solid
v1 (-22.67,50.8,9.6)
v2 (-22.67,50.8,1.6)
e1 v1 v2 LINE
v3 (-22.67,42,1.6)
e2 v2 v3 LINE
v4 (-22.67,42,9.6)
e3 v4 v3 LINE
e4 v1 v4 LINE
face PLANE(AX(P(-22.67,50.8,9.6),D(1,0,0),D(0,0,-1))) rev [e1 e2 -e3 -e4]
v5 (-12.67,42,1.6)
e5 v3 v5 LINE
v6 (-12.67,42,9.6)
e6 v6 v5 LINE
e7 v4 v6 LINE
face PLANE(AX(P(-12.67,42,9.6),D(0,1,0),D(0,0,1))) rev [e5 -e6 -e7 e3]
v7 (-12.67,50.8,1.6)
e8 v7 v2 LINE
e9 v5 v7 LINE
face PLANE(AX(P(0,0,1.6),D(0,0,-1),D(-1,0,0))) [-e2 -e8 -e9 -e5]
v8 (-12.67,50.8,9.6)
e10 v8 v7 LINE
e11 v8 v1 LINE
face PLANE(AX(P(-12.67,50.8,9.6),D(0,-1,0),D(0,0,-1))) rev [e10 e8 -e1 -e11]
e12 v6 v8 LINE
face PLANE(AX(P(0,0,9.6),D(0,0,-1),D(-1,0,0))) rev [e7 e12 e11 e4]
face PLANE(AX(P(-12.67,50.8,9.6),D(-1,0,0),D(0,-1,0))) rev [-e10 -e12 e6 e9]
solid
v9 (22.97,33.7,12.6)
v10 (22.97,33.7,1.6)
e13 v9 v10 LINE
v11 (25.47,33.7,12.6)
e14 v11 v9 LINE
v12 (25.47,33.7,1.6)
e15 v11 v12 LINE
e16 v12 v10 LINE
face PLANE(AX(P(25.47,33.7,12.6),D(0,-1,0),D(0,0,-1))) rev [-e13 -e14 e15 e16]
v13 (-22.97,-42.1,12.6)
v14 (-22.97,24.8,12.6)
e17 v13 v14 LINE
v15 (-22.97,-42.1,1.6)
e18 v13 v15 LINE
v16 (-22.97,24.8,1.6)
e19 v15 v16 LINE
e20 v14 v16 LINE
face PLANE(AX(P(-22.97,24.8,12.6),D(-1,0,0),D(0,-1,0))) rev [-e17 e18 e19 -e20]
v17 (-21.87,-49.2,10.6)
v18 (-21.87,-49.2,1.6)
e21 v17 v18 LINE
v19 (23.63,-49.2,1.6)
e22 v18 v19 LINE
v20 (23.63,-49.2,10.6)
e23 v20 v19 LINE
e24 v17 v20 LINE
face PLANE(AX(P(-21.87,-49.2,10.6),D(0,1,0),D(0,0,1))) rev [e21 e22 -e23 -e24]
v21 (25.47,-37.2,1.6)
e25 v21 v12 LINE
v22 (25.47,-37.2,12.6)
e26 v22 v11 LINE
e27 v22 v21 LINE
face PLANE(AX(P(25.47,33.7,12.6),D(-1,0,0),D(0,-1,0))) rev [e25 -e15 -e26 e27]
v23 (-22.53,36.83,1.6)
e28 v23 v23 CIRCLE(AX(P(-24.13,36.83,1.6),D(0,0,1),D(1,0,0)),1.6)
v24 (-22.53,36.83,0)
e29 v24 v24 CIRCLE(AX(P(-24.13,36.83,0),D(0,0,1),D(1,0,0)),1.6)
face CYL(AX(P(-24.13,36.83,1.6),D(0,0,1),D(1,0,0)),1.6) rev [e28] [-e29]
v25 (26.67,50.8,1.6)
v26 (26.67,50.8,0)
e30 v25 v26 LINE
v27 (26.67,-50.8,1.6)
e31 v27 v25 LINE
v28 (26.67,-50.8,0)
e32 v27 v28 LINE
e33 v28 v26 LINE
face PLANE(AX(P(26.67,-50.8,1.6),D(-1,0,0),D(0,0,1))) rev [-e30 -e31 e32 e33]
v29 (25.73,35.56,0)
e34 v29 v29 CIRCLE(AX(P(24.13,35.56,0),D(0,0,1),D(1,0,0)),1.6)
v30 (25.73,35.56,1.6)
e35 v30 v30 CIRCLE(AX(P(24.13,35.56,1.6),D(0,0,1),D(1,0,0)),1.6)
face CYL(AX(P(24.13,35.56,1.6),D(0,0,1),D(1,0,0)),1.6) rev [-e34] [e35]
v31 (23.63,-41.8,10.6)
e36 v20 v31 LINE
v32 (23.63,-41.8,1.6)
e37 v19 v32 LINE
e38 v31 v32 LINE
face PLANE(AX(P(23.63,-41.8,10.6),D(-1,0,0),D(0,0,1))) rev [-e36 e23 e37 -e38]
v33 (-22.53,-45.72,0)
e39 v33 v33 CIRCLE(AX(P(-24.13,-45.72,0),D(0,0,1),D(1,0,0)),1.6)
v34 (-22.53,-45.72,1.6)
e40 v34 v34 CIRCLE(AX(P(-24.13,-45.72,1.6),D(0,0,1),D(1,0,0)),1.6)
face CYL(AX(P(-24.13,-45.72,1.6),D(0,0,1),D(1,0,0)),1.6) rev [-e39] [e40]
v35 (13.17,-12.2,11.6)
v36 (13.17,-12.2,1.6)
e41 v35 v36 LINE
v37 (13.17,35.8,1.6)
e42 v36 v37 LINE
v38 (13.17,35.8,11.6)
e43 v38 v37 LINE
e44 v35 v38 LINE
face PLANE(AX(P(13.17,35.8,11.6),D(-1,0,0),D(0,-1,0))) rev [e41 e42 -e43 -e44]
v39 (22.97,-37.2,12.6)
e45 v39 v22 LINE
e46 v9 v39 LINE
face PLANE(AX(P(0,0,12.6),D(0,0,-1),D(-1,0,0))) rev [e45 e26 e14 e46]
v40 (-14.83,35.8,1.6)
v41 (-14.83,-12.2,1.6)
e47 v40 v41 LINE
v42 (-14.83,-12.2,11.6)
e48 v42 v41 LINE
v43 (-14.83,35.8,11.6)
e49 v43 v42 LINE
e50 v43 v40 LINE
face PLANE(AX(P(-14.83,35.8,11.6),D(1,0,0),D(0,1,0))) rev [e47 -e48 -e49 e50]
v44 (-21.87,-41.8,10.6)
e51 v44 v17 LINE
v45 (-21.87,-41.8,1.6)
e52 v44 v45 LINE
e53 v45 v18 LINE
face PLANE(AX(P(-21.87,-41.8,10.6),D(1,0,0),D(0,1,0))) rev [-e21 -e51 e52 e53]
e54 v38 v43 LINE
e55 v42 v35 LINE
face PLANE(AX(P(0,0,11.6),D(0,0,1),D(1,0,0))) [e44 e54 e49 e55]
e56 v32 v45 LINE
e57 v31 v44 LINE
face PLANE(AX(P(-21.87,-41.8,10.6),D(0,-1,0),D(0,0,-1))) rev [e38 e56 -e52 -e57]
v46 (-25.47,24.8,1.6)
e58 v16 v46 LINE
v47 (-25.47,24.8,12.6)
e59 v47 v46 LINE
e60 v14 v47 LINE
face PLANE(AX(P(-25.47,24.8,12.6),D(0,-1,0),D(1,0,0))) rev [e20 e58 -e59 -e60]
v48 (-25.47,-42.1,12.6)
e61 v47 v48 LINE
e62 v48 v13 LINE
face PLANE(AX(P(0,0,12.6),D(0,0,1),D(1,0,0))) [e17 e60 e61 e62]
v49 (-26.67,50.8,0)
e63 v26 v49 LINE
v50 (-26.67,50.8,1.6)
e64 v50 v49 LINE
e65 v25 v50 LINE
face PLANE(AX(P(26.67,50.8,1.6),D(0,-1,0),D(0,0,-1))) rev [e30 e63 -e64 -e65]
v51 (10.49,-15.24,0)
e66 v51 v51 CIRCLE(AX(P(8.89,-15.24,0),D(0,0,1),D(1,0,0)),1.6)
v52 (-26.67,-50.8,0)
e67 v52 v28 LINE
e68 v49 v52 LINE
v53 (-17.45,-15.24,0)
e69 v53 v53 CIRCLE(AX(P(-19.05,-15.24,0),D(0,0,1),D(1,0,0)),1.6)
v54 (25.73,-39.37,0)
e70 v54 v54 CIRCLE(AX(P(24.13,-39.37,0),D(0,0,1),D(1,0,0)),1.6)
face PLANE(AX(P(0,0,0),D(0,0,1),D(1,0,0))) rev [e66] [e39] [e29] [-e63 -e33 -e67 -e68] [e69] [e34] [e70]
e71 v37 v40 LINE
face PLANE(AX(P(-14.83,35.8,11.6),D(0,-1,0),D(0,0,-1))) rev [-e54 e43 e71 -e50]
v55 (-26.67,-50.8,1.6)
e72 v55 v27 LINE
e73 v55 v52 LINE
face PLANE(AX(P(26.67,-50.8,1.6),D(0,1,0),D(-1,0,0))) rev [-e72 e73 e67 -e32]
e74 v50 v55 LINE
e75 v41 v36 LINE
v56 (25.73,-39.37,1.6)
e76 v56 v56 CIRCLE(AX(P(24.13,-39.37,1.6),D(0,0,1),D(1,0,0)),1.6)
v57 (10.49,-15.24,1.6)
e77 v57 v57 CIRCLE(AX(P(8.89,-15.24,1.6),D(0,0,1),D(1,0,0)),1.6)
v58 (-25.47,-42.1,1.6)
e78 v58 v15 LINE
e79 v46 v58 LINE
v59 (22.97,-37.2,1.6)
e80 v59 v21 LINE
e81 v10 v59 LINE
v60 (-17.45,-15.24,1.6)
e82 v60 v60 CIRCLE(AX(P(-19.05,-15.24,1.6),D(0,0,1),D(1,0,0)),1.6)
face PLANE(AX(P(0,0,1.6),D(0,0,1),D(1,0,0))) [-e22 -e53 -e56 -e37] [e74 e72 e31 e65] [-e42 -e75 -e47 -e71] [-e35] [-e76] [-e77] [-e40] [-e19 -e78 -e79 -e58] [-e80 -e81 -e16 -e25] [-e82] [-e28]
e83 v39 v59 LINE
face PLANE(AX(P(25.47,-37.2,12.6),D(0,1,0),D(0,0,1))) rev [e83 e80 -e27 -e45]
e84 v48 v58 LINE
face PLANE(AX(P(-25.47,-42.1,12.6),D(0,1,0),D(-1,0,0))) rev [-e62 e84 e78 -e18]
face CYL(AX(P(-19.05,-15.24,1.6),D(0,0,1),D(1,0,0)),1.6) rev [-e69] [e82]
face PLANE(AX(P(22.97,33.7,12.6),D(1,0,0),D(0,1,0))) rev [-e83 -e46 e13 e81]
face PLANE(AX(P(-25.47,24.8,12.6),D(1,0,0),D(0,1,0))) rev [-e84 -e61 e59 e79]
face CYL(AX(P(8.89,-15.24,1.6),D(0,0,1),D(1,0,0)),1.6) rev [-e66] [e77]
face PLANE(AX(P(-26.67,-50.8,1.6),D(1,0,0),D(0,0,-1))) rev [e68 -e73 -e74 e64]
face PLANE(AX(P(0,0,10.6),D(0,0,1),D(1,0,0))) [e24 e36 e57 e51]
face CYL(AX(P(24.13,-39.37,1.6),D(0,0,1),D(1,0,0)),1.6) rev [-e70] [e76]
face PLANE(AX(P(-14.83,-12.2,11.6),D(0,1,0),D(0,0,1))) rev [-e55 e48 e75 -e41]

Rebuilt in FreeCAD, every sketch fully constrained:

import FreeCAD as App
import Part
import Sketcher
from FreeCAD import Vector

doc = App.newDocument("Part")
body = doc.addObject("PartDesign::Body", "Body")

# Sketch on XY plane
sketch1 = doc.addObject("Sketcher::SketchObject", "Sketch")
body.addObject(sketch1)
sketch1.AttachmentSupport = (doc.XY_Plane, [""])
sketch1.MapMode = "FlatFace"
sketch1.addGeometry([
    Part.LineSegment(Vector(-27, 51, 0), Vector(-27, -51, 0)),
    Part.LineSegment(Vector(-27, -51, 0), Vector(27, -51, 0)),
    Part.LineSegment(Vector(27, -51, 0), Vector(27, 51, 0)),
    Part.LineSegment(Vector(27, 51, 0), Vector(-27, 51, 0)),
], False)
sketch1.addConstraint([
    Sketcher.Constraint("Coincident", 0, 2, 1, 1),
    Sketcher.Constraint("Coincident", 1, 2, 2, 1),
    Sketcher.Constraint("Coincident", 2, 2, 3, 1),
    Sketcher.Constraint("Coincident", 3, 2, 0, 1),
    Sketcher.Constraint("Vertical", 0),
    Sketcher.Constraint("Horizontal", 1),
    Sketcher.Constraint("Vertical", 2),
    Sketcher.Constraint("Horizontal", 3),
    Sketcher.Constraint("Symmetric", 0, 2, 2, 2, -1, 1),
    Sketcher.Constraint("DistanceY", 0, 2, 0, 1, 101.6),
    Sketcher.Constraint("DistanceX", 1, 1, 1, 2, 53.34),
])
pad1 = doc.addObject("PartDesign::Pad", "Pad")
body.addObject(pad1)
pad1.Profile = sketch1
pad1.Length = 1.6

# Sketch on XY plane
sketch2 = doc.addObject("Sketcher::SketchObject", "Sketch001")
body.addObject(sketch2)
sketch2.AttachmentSupport = (doc.XY_Plane, [""])
sketch2.MapMode = "FlatFace"
sketch2.AttachmentOffset = App.Placement(Vector(0, 0, 1.6), App.Rotation())
sketch2.addGeometry([
    Part.LineSegment(Vector(-25.5, 24.8, 0), Vector(-25.5, -42.1, 0)),  # 0
    Part.LineSegment(Vector(-25.5, -42.1, 0), Vector(-23, -42.1, 0)),  # 1
    Part.LineSegment(Vector(-23, -42.1, 0), Vector(-23, 24.8, 0)),  # 2
    Part.LineSegment(Vector(-23, 24.8, 0), Vector(-25.5, 24.8, 0)),  # 3
    Part.LineSegment(Vector(23, 33.7, 0), Vector(23, -37.2, 0)),  # 4
    Part.LineSegment(Vector(23, -37.2, 0), Vector(25.5, -37.2, 0)),  # 5
    Part.LineSegment(Vector(25.5, -37.2, 0), Vector(25.5, 33.7, 0)),  # 6
    Part.LineSegment(Vector(25.5, 33.7, 0), Vector(23, 33.7, 0)),  # 7
], False)
sketch2.addConstraint([
    Sketcher.Constraint("Coincident", 0, 2, 1, 1),
    Sketcher.Constraint("Coincident", 1, 2, 2, 1),
    Sketcher.Constraint("Coincident", 2, 2, 3, 1),
    Sketcher.Constraint("Coincident", 3, 2, 0, 1),
    Sketcher.Constraint("Coincident", 4, 2, 5, 1),
    Sketcher.Constraint("Coincident", 5, 2, 6, 1),
    Sketcher.Constraint("Coincident", 6, 2, 7, 1),
    Sketcher.Constraint("Coincident", 7, 2, 4, 1),
    Sketcher.Constraint("Vertical", 0),
    Sketcher.Constraint("Horizontal", 1),
    Sketcher.Constraint("Vertical", 2),
    Sketcher.Constraint("Horizontal", 3),
    Sketcher.Constraint("Vertical", 4),
    Sketcher.Constraint("Horizontal", 5),
    Sketcher.Constraint("Vertical", 6),
    Sketcher.Constraint("Horizontal", 7),
    Sketcher.Constraint("Equal", 3, 5),
    Sketcher.Constraint("DistanceX", 1, 1, 1, 2, 2.5),
    Sketcher.Constraint("DistanceY", 0, 2, 0, 1, 66.9),
    Sketcher.Constraint("DistanceY", 4, 2, 4, 1, 70.9),
    Sketcher.Constraint("DistanceY", 4, 2, 2, 2, 62.0),
    Sketcher.Constraint("DistanceY", 0, 2, -1, 1, 42.1),
    Sketcher.Constraint("DistanceX", 0, 2, -1, 1, 25.47),
    Sketcher.Constraint("DistanceX", -1, 1, 4, 2, 22.97),
])
pad2 = doc.addObject("PartDesign::Pad", "Pad001")
body.addObject(pad2)
pad2.Profile = sketch2
pad2.Length = 11

# Sketch on XY plane
sketch3 = doc.addObject("Sketcher::SketchObject", "Sketch002")
body.addObject(sketch3)
sketch3.AttachmentSupport = (doc.XY_Plane, [""])
sketch3.MapMode = "FlatFace"
sketch3.AttachmentOffset = App.Placement(Vector(0, 0, 1.6), App.Rotation())
sketch3.addGeometry([
    Part.LineSegment(Vector(-22, -42, 0), Vector(-22, -49, 0)),
    Part.LineSegment(Vector(-22, -49, 0), Vector(24, -49, 0)),
    Part.LineSegment(Vector(24, -49, 0), Vector(24, -42, 0)),
    Part.LineSegment(Vector(24, -42, 0), Vector(-22, -42, 0)),
], False)
sketch3.addConstraint([
    Sketcher.Constraint("Coincident", 0, 2, 1, 1),
    Sketcher.Constraint("Coincident", 1, 2, 2, 1),
    Sketcher.Constraint("Coincident", 2, 2, 3, 1),
    Sketcher.Constraint("Coincident", 3, 2, 0, 1),
    Sketcher.Constraint("Vertical", 0),
    Sketcher.Constraint("Horizontal", 1),
    Sketcher.Constraint("Vertical", 2),
    Sketcher.Constraint("Horizontal", 3),
    Sketcher.Constraint("DistanceX", 1, 1, 1, 2, 45.5),
    Sketcher.Constraint("DistanceY", 0, 2, 0, 1, 7.4),
    Sketcher.Constraint("DistanceY", 0, 2, -1, 1, 49.2),
    Sketcher.Constraint("DistanceX", 0, 2, -1, 1, 21.87),
])
pad3 = doc.addObject("PartDesign::Pad", "Pad002")
body.addObject(pad3)
pad3.Profile = sketch3
pad3.Length = 9

# Sketch on XY plane
sketch4 = doc.addObject("Sketcher::SketchObject", "Sketch003")
body.addObject(sketch4)
sketch4.AttachmentSupport = (doc.XY_Plane, [""])
sketch4.MapMode = "FlatFace"
sketch4.AttachmentOffset = App.Placement(Vector(0, 0, 1.6), App.Rotation())
sketch4.addGeometry([
    Part.Circle(Vector(24.1, -39.4, 0), Vector(0, 0, 1), 1.6),  # 0
    Part.Circle(Vector(-24.1, -45.7, 0), Vector(0, 0, 1), 1.6),  # 1
    Part.Circle(Vector(-19.1, -15.2, 0), Vector(0, 0, 1), 1.6),  # 2
    Part.Circle(Vector(8.9, -15.2, 0), Vector(0, 0, 1), 1.6),  # 3
    Part.Circle(Vector(-24.1, 36.8, 0), Vector(0, 0, 1), 1.6),  # 4
    Part.Circle(Vector(24.1, 35.6, 0), Vector(0, 0, 1), 1.6),  # 5
], False)
sketch4.addConstraint([
    Sketcher.Constraint("Equal", 0, 1),
    Sketcher.Constraint("Equal", 1, 2),
    Sketcher.Constraint("Equal", 2, 3),
    Sketcher.Constraint("Equal", 3, 4),
    Sketcher.Constraint("Equal", 4, 5),
    Sketcher.Constraint("Horizontal", 2, 3, 3, 3),
    Sketcher.Constraint("Vertical", 1, 3, 4, 3),
    Sketcher.Constraint("Vertical", 0, 3, 5, 3),
    Sketcher.Constraint("Diameter", 0, 3.2),
    Sketcher.Constraint("DistanceY", 0, 3, 4, 3, 76.2),
    Sketcher.Constraint("DistanceY", 3, 3, 5, 3, 50.8),
    Sketcher.Constraint("DistanceX", -1, 1, 0, 3, 24.13),
    Sketcher.Constraint("DistanceY", 0, 3, -1, 1, 39.37),
    Sketcher.Constraint("DistanceX", 1, 3, -1, 1, 24.13),
    Sketcher.Constraint("DistanceY", 1, 3, -1, 1, 45.72),
    Sketcher.Constraint("DistanceX", 2, 3, -1, 1, 19.05),
    Sketcher.Constraint("DistanceY", 2, 3, -1, 1, 15.24),
    Sketcher.Constraint("DistanceX", -1, 1, 3, 3, 8.89),
])
doc.recompute()
hole = doc.addObject("PartDesign::Hole", "Hole")
body.addObject(hole)
hole.Profile = sketch4
hole.ThreadType = "None"
hole.Diameter = 3.2
hole.DepthType = "Dimension"
hole.Depth = 1.6
hole.DrillPoint = "Flat"

# Sketch on XY plane
sketch5 = doc.addObject("Sketcher::SketchObject", "Sketch004")
body.addObject(sketch5)
sketch5.AttachmentSupport = (doc.XY_Plane, [""])
sketch5.MapMode = "FlatFace"
sketch5.AttachmentOffset = App.Placement(Vector(0, 0, 1.6), App.Rotation())
sketch5.addGeometry([
    Part.LineSegment(Vector(-15, 36, 0), Vector(-15, -12, 0)),
    Part.LineSegment(Vector(-15, -12, 0), Vector(13, -12, 0)),
    Part.LineSegment(Vector(13, -12, 0), Vector(13, 36, 0)),
    Part.LineSegment(Vector(13, 36, 0), Vector(-15, 36, 0)),
], False)
sketch5.addConstraint([
    Sketcher.Constraint("Coincident", 0, 2, 1, 1),
    Sketcher.Constraint("Coincident", 1, 2, 2, 1),
    Sketcher.Constraint("Coincident", 2, 2, 3, 1),
    Sketcher.Constraint("Coincident", 3, 2, 0, 1),
    Sketcher.Constraint("Vertical", 0),
    Sketcher.Constraint("Horizontal", 1),
    Sketcher.Constraint("Vertical", 2),
    Sketcher.Constraint("Horizontal", 3),
    Sketcher.Constraint("DistanceX", 1, 1, 1, 2, 28.0),
    Sketcher.Constraint("DistanceY", 0, 2, 0, 1, 48.0),
    Sketcher.Constraint("DistanceY", 0, 2, -1, 1, 12.2),
    Sketcher.Constraint("DistanceX", 0, 2, -1, 1, 14.83),
])
pad4 = doc.addObject("PartDesign::Pad", "Pad003")
body.addObject(pad4)
pad4.Profile = sketch5
pad4.Length = 10
body2 = doc.addObject("PartDesign::Body", "Body001")

# Sketch on XY plane
sketch6 = doc.addObject("Sketcher::SketchObject", "Sketch005")
body2.addObject(sketch6)
sketch6.AttachmentSupport = (doc.getObject("XY_Plane001"), [""])
sketch6.MapMode = "FlatFace"
sketch6.AttachmentOffset = App.Placement(Vector(0, 0, 1.6), App.Rotation())
sketch6.addGeometry([
    Part.LineSegment(Vector(-23, 51, 0), Vector(-23, 42, 0)),
    Part.LineSegment(Vector(-23, 42, 0), Vector(-13, 42, 0)),
    Part.LineSegment(Vector(-13, 42, 0), Vector(-13, 51, 0)),
    Part.LineSegment(Vector(-13, 51, 0), Vector(-23, 51, 0)),
], False)
sketch6.addConstraint([
    Sketcher.Constraint("Coincident", 0, 2, 1, 1),
    Sketcher.Constraint("Coincident", 1, 2, 2, 1),
    Sketcher.Constraint("Coincident", 2, 2, 3, 1),
    Sketcher.Constraint("Coincident", 3, 2, 0, 1),
    Sketcher.Constraint("Vertical", 0),
    Sketcher.Constraint("Horizontal", 1),
    Sketcher.Constraint("Vertical", 2),
    Sketcher.Constraint("Horizontal", 3),
    Sketcher.Constraint("DistanceX", 1, 1, 1, 2, 10.0),
    Sketcher.Constraint("DistanceY", 0, 2, 0, 1, 8.8),
    Sketcher.Constraint("DistanceY", -1, 1, 0, 2, 42.0),
    Sketcher.Constraint("DistanceX", 0, 2, -1, 1, 22.67),
])
pad5 = doc.addObject("PartDesign::Pad", "Pad004")
body2.addObject(pad5)
pad5.Profile = sketch6
pad5.Length = 8

doc.recompute()
